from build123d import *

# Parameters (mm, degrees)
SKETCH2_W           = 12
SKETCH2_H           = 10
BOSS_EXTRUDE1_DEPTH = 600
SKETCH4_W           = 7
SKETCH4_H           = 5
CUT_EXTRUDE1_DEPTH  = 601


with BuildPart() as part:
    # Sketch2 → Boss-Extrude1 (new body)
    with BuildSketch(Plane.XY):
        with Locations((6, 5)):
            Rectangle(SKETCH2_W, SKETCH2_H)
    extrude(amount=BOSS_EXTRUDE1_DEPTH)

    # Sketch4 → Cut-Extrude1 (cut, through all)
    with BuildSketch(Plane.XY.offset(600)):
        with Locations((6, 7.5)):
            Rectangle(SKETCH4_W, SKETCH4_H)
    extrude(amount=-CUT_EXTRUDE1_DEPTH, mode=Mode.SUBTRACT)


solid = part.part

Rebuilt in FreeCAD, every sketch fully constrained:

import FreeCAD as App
import Part
import Sketcher
from FreeCAD import Vector
Q = App.Units.Quantity


def add_polygon(sketch, points):
    """Adds a closed chain of lines whose ends are joined by coincident constraints."""
    first, n = sketch.GeometryCount, len(points)
    for a, b in zip(points, points[1:] + points[:1]):
        sketch.addGeometry(Part.LineSegment(App.Vector(*a, 0), App.Vector(*b, 0)), False)
    for i in range(n):
        sketch.addConstraint(Sketcher.Constraint("Coincident", first + i, 2, first + (i + 1) % n, 1))

doc = App.newDocument("Part")
body = doc.addObject("PartDesign::Body", "Body")

# Sketch on XY plane
sketch1 = doc.addObject("Sketcher::SketchObject", "Sketch")
body.addObject(sketch1)
sketch1.AttachmentSupport = (doc.XY_Plane, [""])
sketch1.MapMode = "FlatFace"
add_polygon(sketch1, [(0, 10), (0, 0), (12, 0), (12, 10)])  # lines 0-3
sketch1.addConstraint([
    Sketcher.Constraint("Vertical", 0),
    Sketcher.Constraint("Horizontal", 1),
    Sketcher.Constraint("Vertical", 2),
    Sketcher.Constraint("Horizontal", 3),
    Sketcher.Constraint("Coincident", 0, 2, -1, 1),
    Sketcher.Constraint("DistanceX", 1, 1, 1, 2, Q("12 mm")),
    Sketcher.Constraint("DistanceY", 0, 2, 0, 1, Q("10 mm")),
])
pad1 = doc.addObject("PartDesign::Pad", "Pad")
body.addObject(pad1)
pad1.Profile = sketch1
pad1.Length = 600

# Sketch on XY plane
sketch2 = doc.addObject("Sketcher::SketchObject", "Sketch001")
body.addObject(sketch2)
sketch2.AttachmentSupport = (doc.XY_Plane, [""])
sketch2.MapMode = "FlatFace"
sketch2.AttachmentOffset = App.Placement(Vector(0, 0, 600), App.Rotation())
add_polygon(sketch2, [(2, 10), (2, 5), (10, 5), (10, 10)])  # lines 0-3
sketch2.addConstraint([
    Sketcher.Constraint("Vertical", 0),
    Sketcher.Constraint("Horizontal", 1),
    Sketcher.Constraint("Vertical", 2),
    Sketcher.Constraint("Horizontal", 3),
    Sketcher.Constraint("DistanceX", 1, 1, 1, 2, Q("7 mm")),
    Sketcher.Constraint("DistanceY", 0, 2, 0, 1, Q("5 mm")),
    Sketcher.Constraint("DistanceY", -1, 1, 0, 2, Q("5 mm")),
    Sketcher.Constraint("DistanceX", -1, 1, 0, 2, Q("2.5 mm")),
])
pocket1 = doc.addObject("PartDesign::Pocket", "Pocket")
body.addObject(pocket1)
pocket1.Profile = sketch2
pocket1.Type = "ThroughAll"

doc.recompute()
